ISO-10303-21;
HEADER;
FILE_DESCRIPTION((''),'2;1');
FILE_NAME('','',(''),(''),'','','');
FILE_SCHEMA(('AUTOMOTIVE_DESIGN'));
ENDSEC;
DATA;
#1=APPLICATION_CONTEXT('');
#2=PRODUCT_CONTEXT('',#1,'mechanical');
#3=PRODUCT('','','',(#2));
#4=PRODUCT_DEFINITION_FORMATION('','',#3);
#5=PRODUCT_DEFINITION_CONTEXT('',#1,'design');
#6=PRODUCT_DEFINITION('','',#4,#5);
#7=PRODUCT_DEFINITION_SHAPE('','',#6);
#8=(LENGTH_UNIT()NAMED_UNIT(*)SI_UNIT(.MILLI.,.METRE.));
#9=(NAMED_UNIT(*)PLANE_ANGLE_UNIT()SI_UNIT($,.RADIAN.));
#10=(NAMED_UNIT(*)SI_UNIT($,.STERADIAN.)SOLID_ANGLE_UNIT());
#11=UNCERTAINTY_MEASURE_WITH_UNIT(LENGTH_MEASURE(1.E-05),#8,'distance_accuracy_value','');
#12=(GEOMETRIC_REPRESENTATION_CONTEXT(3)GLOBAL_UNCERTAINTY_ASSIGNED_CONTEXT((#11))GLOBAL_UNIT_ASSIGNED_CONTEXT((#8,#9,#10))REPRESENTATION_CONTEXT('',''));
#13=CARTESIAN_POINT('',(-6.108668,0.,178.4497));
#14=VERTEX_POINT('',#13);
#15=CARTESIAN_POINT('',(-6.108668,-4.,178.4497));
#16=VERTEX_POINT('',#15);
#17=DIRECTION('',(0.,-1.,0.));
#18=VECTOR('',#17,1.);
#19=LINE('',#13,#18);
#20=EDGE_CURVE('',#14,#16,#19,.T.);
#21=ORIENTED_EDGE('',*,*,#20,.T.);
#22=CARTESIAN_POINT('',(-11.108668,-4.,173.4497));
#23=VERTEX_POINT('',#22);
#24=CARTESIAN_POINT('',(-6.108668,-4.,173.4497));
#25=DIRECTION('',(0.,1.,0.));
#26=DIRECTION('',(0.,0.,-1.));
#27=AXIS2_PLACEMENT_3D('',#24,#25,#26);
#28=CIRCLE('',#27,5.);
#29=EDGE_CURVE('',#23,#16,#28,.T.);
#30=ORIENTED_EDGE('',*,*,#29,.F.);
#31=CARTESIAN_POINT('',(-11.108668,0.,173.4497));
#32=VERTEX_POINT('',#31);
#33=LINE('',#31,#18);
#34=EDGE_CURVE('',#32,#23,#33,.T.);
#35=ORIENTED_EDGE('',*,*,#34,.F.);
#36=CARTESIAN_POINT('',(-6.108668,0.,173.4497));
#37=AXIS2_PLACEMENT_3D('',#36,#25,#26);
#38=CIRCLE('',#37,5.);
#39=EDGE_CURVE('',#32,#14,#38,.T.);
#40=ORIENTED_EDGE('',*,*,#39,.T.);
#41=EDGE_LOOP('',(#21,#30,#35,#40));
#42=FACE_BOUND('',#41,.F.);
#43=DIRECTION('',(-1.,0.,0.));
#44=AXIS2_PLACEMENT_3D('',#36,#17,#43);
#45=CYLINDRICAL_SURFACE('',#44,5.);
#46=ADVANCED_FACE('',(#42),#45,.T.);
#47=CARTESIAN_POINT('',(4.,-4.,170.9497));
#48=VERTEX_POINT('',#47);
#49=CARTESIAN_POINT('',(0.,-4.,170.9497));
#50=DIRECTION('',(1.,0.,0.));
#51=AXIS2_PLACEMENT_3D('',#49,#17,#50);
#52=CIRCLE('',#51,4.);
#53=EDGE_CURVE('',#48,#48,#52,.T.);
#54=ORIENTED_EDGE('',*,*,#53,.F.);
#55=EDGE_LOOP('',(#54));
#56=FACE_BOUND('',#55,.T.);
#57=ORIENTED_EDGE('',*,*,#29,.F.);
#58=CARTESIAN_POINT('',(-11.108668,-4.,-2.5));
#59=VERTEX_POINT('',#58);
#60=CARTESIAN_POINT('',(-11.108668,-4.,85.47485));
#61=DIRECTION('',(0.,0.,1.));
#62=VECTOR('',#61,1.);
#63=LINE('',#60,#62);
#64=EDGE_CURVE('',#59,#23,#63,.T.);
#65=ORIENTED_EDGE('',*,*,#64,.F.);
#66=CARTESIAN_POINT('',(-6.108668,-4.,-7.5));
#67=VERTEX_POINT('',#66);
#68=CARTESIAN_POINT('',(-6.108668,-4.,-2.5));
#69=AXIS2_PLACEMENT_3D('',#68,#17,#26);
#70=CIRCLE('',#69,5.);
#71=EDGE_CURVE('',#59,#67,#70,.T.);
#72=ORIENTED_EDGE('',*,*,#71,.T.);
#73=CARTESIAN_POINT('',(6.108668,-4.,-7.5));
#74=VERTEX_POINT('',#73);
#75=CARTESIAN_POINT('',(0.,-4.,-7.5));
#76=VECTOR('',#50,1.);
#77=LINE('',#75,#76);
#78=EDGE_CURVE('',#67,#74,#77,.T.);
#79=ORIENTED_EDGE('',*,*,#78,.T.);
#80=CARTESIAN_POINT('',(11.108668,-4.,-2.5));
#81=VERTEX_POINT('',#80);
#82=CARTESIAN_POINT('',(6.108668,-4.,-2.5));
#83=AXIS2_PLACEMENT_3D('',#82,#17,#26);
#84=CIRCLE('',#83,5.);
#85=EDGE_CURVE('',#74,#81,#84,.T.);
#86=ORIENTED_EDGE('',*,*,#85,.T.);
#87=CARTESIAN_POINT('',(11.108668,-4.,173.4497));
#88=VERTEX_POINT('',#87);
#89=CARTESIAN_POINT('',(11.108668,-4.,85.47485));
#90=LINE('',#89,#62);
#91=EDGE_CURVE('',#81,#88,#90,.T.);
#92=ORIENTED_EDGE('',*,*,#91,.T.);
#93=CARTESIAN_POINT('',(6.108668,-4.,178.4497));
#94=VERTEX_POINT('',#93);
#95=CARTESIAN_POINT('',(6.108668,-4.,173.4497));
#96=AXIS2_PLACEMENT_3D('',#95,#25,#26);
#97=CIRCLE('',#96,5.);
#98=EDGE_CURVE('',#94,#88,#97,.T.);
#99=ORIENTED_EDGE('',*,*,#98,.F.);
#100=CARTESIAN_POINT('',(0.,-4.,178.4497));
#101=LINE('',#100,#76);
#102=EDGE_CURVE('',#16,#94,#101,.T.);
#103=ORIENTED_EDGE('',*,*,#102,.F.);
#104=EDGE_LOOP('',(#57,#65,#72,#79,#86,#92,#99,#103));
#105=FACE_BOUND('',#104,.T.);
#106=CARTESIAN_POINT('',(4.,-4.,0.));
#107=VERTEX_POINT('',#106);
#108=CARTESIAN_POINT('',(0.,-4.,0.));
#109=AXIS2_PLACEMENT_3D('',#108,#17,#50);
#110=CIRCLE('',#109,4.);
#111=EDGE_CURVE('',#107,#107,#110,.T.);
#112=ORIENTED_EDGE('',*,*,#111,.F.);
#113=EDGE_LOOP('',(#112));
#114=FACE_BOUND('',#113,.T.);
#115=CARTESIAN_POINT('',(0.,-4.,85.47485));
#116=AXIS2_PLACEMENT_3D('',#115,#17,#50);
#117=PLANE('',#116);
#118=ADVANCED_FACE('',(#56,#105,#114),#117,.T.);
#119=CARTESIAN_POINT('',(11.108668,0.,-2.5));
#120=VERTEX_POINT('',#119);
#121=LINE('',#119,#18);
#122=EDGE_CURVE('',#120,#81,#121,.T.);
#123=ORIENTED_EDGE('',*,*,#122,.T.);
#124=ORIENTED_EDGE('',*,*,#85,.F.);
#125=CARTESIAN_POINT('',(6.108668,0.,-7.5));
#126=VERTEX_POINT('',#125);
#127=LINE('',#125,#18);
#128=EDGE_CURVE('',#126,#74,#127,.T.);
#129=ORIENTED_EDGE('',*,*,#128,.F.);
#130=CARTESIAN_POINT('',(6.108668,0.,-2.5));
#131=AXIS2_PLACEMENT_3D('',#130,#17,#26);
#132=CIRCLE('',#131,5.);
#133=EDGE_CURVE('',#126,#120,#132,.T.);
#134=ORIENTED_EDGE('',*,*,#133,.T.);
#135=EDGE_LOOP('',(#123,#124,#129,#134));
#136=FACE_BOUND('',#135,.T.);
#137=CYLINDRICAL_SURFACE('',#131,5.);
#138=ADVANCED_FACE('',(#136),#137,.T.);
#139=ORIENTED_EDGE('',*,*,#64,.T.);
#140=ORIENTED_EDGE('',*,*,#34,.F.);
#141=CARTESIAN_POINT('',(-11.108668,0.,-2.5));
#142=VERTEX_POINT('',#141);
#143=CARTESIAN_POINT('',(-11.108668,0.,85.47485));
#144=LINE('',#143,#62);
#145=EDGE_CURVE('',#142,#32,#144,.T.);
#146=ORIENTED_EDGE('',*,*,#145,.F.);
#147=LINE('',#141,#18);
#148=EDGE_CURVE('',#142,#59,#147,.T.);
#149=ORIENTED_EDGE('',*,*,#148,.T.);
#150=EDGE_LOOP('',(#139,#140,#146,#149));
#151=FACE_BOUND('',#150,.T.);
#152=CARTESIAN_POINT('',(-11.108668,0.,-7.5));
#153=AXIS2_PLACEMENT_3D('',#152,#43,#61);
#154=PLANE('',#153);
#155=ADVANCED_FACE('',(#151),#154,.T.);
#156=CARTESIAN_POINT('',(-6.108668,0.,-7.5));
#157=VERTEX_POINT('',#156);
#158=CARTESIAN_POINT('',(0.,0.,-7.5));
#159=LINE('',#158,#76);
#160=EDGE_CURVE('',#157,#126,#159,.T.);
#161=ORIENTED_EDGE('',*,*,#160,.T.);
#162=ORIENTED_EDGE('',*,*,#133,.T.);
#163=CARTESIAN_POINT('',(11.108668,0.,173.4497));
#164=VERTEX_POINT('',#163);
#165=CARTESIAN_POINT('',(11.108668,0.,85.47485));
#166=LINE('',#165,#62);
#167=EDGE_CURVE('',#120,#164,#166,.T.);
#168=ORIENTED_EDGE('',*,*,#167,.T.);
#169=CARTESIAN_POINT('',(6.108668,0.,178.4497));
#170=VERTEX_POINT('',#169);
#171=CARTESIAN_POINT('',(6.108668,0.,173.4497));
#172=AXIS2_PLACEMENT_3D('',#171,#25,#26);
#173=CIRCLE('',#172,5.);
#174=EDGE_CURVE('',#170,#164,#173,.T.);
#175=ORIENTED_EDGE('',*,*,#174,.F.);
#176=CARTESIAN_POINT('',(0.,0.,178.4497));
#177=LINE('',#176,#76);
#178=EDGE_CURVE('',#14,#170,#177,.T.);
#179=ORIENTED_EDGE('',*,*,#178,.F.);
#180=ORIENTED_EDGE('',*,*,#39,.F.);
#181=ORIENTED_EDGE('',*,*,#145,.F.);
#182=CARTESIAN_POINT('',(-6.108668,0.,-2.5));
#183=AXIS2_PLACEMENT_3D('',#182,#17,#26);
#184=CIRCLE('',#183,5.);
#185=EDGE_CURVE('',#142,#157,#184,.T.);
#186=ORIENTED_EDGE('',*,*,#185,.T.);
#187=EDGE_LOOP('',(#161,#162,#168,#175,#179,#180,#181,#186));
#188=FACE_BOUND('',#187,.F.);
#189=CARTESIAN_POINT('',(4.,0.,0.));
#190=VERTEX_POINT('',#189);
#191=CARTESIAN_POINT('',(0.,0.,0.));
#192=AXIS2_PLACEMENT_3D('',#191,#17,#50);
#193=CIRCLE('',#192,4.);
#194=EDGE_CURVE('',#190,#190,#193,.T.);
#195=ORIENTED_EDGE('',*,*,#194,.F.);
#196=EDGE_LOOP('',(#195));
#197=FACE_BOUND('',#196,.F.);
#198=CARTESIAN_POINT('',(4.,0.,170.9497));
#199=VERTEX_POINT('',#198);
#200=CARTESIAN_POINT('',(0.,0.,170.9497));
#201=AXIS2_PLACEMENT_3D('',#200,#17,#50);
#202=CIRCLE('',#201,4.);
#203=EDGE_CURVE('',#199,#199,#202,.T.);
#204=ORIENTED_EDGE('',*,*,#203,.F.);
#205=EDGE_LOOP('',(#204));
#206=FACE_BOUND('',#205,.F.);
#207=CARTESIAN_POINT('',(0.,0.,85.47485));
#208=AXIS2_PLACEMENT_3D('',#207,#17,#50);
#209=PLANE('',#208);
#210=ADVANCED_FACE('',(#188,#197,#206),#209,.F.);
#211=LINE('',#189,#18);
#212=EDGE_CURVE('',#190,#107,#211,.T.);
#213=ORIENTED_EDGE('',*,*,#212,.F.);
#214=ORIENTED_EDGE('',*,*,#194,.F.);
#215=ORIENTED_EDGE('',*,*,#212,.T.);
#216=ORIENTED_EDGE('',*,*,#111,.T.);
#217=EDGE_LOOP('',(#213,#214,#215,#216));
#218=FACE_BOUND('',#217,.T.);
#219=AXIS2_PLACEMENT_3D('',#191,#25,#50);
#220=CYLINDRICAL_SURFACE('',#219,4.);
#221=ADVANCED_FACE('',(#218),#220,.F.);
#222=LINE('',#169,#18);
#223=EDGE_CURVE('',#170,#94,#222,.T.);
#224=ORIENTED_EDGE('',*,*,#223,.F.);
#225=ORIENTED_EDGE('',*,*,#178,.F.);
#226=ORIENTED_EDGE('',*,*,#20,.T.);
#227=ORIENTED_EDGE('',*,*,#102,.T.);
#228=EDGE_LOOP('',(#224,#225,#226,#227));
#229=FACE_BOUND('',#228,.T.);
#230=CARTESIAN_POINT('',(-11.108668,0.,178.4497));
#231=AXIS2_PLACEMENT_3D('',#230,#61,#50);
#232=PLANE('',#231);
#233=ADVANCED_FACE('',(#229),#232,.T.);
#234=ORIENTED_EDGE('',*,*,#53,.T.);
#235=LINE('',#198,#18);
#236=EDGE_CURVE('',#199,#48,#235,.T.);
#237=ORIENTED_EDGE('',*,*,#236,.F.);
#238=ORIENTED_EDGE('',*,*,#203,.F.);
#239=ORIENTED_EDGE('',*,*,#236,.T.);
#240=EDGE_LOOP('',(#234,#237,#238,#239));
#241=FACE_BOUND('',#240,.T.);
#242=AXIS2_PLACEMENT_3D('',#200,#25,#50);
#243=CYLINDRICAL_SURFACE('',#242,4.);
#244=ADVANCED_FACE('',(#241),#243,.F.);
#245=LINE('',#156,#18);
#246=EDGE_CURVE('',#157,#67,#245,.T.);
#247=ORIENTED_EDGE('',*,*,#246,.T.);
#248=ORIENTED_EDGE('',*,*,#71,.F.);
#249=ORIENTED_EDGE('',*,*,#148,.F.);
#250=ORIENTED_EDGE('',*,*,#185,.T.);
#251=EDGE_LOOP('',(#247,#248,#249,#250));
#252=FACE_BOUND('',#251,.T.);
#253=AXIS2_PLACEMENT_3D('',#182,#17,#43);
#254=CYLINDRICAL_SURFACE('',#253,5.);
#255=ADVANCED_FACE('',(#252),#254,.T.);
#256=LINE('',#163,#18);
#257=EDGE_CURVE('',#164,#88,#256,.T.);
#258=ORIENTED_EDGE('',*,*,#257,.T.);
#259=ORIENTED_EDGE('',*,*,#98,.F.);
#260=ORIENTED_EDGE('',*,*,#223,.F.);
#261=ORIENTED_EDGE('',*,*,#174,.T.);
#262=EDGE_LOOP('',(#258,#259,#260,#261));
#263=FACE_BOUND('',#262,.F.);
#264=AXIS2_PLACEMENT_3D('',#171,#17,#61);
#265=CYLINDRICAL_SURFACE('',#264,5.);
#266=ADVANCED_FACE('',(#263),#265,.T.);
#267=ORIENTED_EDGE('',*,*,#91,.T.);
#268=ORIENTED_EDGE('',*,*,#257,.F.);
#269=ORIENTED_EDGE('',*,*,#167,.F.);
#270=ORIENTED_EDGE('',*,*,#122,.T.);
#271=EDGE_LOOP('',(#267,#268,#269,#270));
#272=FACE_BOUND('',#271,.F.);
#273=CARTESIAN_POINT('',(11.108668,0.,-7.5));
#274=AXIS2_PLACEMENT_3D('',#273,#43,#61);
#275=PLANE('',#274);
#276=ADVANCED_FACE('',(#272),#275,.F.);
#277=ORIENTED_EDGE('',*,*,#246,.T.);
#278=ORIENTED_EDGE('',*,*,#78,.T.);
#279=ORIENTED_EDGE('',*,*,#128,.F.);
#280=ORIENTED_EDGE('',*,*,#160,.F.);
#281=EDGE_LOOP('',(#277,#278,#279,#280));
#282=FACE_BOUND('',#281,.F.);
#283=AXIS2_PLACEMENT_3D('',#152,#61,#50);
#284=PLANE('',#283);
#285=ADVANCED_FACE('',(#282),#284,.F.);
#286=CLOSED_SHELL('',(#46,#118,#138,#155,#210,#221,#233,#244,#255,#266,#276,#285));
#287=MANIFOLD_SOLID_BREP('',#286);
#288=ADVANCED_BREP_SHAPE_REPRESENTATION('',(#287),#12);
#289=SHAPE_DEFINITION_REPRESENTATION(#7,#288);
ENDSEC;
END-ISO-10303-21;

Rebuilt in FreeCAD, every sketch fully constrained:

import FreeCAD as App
import Part
import Sketcher
Q = App.Units.Quantity


def edges_at(feature, points):
    """Names of the edges that pass closest to the given points."""
    edges = feature.Shape.Edges
    near = lambda p: min(range(len(edges)), key=lambda i: edges[i].distToShape(Part.Vertex(*p))[0])
    return sorted({f"Edge{near(p) + 1}" for p in points})

doc = App.newDocument("Part")
params = doc.addObject("Spreadsheet::Sheet", "Params")
for row, (alias, value) in enumerate([
    ("sketch1_diameter", "8 mm"),
    ("pad1_length", "4 mm"),
    ("fillet_radius", "5 mm"),
], start=1):
    params.set(f"A{row}", alias)
    params.set(f"B{row}", "=" + value)
    params.setAlias(f"B{row}", alias)

body = doc.addObject("PartDesign::Body", "Body")

sketch1 = doc.addObject("Sketcher::SketchObject", "Sketch")
body.addObject(sketch1)
sketch1.AttachmentSupport = (doc.XZ_Plane, [""])
sketch1.MapMode = "FlatFace"
sketch1.addGeometry([
    Part.LineSegment(App.Vector(-11.108668, 178.4497, 0), App.Vector(-11.108668, -7.5, 0)),
    Part.LineSegment(App.Vector(-11.108668, -7.5, 0), App.Vector(11.108668, -7.5, 0)),
    Part.LineSegment(App.Vector(11.108668, -7.5, 0), App.Vector(11.108668, 178.4497, 0)),
    Part.LineSegment(App.Vector(11.108668, 178.4497, 0), App.Vector(-11.108668, 178.4497, 0)),
    Part.Circle(App.Vector(0, 0, 0), App.Vector(0, 0, 1), 4),
    Part.Circle(App.Vector(0, 170.9497, 0), App.Vector(0, 0, 1), 4),
], False)
sketch1.addConstraint([
    Sketcher.Constraint("Coincident", 0, 2, 1, 1),
    Sketcher.Constraint("Coincident", 1, 2, 2, 1),
    Sketcher.Constraint("Coincident", 2, 2, 3, 1),
    Sketcher.Constraint("Coincident", 3, 2, 0, 1),
    Sketcher.Constraint("Vertical", 0),
    Sketcher.Constraint("Horizontal", 1),
    Sketcher.Constraint("Vertical", 2),
    Sketcher.Constraint("Horizontal", 3),
    Sketcher.Constraint("Coincident", 4, 3, -1, 1),
    Sketcher.Constraint("Equal", 4, 5),
    Sketcher.Constraint("PointOnObject", 5, 3, -2),
    Sketcher.Constraint("Diameter", 4, Q("8 mm")),
    Sketcher.Constraint("DistanceY", 0, 2, -1, 1, Q("7.5 mm")),
    Sketcher.Constraint("DistanceY", 5, 3, 2, 2, Q("7.5 mm")),
    Sketcher.Constraint("DistanceY", 0, 2, 0, 1, Q("185.9497 mm")),
    Sketcher.Constraint("DistanceX", 1, 1, 1, 2, Q("22.217336 mm")),
    Sketcher.Constraint("DistanceX", 0, 2, -1, 1, Q("11.108668 mm")),
])
sketch1.setExpression("Constraints[11]", "Params.sketch1_diameter")
pad1 = doc.addObject("PartDesign::Pad", "Pad")
body.addObject(pad1)
pad1.Profile = sketch1
pad1.setExpression("Length", "Params.pad1_length")
doc.recompute()

fillet = doc.addObject("PartDesign::Fillet", "Fillet")
body.addObject(fillet)
fillet.Base = (pad1, edges_at(pad1, [
    (-11.109, -2, -7.5),
    (11.109, -2, -7.5),
    (11.109, -2, 178.45),
    (-11.109, -2, 178.45),
]))
fillet.setExpression("Radius", "Params.fillet_radius")

doc.recompute()
